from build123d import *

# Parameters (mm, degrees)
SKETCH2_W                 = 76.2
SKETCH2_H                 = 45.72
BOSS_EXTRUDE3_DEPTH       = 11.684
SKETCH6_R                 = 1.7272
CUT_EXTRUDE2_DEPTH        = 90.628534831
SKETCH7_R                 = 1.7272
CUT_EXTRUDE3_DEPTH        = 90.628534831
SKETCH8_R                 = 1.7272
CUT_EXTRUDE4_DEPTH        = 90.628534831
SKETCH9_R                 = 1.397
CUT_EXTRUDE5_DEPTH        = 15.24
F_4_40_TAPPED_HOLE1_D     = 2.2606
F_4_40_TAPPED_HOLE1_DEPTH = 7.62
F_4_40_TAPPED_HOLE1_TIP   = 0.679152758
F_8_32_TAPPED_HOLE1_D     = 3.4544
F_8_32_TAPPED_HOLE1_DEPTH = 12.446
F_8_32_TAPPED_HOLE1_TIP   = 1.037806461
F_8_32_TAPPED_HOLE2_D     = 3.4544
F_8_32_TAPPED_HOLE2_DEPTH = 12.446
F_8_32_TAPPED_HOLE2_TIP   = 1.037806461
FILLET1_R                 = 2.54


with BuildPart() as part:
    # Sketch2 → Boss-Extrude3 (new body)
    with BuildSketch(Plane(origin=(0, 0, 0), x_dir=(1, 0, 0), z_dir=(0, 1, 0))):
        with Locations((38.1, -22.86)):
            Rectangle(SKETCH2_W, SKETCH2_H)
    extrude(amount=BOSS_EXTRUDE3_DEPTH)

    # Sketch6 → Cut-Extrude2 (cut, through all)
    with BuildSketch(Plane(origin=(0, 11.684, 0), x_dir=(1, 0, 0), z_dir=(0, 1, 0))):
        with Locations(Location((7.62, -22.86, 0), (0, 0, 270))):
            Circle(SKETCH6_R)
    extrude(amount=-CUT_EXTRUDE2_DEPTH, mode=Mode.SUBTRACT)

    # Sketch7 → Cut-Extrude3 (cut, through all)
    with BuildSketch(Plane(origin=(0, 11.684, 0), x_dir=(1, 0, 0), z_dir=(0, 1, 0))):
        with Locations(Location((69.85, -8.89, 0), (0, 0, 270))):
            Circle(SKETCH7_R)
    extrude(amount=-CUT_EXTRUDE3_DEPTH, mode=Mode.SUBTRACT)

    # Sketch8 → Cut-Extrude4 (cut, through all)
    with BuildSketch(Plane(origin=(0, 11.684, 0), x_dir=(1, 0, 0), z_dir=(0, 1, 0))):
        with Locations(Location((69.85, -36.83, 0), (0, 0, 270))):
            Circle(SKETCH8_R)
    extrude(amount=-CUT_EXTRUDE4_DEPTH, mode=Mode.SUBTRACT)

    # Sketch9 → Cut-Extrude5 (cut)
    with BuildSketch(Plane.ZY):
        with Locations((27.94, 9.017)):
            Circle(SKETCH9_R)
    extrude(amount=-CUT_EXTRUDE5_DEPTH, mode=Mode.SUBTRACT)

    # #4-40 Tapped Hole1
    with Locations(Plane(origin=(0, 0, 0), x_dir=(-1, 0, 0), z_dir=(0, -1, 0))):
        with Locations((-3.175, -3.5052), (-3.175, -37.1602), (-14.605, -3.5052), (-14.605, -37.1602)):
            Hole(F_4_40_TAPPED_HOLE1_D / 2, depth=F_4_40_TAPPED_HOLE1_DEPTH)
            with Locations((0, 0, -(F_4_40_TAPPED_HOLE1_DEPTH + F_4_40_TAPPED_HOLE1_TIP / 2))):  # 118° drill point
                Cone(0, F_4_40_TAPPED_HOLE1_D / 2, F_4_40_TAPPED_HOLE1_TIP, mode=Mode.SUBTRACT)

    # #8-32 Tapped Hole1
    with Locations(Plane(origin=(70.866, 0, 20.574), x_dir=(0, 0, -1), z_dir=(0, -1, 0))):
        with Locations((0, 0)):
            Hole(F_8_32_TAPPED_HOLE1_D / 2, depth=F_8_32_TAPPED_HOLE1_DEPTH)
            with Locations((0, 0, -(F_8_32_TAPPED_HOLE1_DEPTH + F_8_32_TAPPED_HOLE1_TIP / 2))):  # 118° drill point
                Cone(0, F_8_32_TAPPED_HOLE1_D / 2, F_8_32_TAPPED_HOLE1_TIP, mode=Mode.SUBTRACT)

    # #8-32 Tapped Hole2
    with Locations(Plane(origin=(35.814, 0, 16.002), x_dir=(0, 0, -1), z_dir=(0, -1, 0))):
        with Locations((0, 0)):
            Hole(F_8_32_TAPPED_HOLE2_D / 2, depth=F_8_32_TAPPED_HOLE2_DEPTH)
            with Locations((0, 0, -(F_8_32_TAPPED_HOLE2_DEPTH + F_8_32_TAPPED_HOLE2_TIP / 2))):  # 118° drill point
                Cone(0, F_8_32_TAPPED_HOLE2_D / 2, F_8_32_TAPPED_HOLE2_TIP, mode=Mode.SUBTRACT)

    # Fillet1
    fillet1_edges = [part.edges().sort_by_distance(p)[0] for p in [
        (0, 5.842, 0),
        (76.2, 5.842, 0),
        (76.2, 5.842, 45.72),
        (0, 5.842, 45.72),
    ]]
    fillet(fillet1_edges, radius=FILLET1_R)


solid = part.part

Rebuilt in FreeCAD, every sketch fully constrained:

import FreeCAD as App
import Part
import Sketcher

V = App.Vector
Q = App.Units.Quantity


def edges_at(feature, points):
    """Names of the edges that pass closest to the given points."""
    edges = feature.Shape.Edges
    near = lambda p: min(range(len(edges)), key=lambda i: edges[i].distToShape(Part.Vertex(*p))[0])
    return sorted({f"Edge{near(p) + 1}" for p in points})


def add_polygon(sketch, points):
    """Adds a closed chain of lines whose ends are joined by coincident constraints."""
    first, n = sketch.GeometryCount, len(points)
    for a, b in zip(points, points[1:] + points[:1]):
        sketch.addGeometry(Part.LineSegment(App.Vector(*a, 0), App.Vector(*b, 0)), False)
    for i in range(n):
        sketch.addConstraint(Sketcher.Constraint("Coincident", first + i, 2, first + (i + 1) % n, 1))

doc = App.newDocument("Part")
body = doc.addObject("PartDesign::Body", "Body")

sketch1 = body.newObject("Sketcher::SketchObject", "Sketch")
sketch1.AttachmentSupport = (doc.getObject("XZ_Plane"), [""])
sketch1.MapMode = "FlatFace"
add_polygon(sketch1, [(0, 0), (0, 46), (76, 46), (76, 0)])
sketch1.addConstraint(Sketcher.Constraint("Vertical", 0))
sketch1.addConstraint(Sketcher.Constraint("Horizontal", 1))
sketch1.addConstraint(Sketcher.Constraint("Vertical", 2))
sketch1.addConstraint(Sketcher.Constraint("Horizontal", 3))
sketch1.addConstraint(Sketcher.Constraint("Coincident", 3, 2, -1, 1))
sketch1.addConstraint(Sketcher.Constraint("DistanceX", 1, 1, 1, 2, Q("3 in")))
sketch1.addConstraint(Sketcher.Constraint("DistanceY", 0, 1, 0, 2, Q("1.8 in")))
pad1 = body.newObject("PartDesign::Pad", "Pad")
pad1.Profile = sketch1
pad1.Length = Q("0.46 in")
pad1.Reversed = True

sketch2 = body.newObject("Sketcher::SketchObject", "Sketch001")
sketch2.AttachmentSupport = (doc.getObject("XZ_Plane"), [""])
sketch2.MapMode = "FlatFace"
sketch2.AttachmentOffset = App.Placement(V(0, 0, -0.46 * 25.4), App.Rotation())
sketch2.addGeometry(Part.Circle(V(7.6, 22.9, 0), V(0, 0, 1), 1.7), False)
sketch2.addConstraint(Sketcher.Constraint("Diameter", 0, Q("0.136 in")))
sketch2.addConstraint(Sketcher.Constraint("DistanceX", -1, 1, 0, 3, Q("0.3 in")))
sketch2.addConstraint(Sketcher.Constraint("DistanceY", -1, 1, 0, 3, Q("0.9 in")))
pocket1 = body.newObject("PartDesign::Pocket", "Pocket")
pocket1.Profile = sketch2
pocket1.Type = "ThroughAll"
pocket1.Reversed = True

sketch3 = body.newObject("Sketcher::SketchObject", "Sketch002")
sketch3.AttachmentSupport = (doc.getObject("XZ_Plane"), [""])
sketch3.MapMode = "FlatFace"
sketch3.AttachmentOffset = App.Placement(V(0, 0, -0.46 * 25.4), App.Rotation())
sketch3.addGeometry(Part.Circle(V(69.8, 8.9, 0), V(0, 0, 1), 1.7), False)
sketch3.addConstraint(Sketcher.Constraint("Diameter", 0, Q("0.136 in")))
sketch3.addConstraint(Sketcher.Constraint("DistanceX", -1, 1, 0, 3, Q("2.75 in")))
sketch3.addConstraint(Sketcher.Constraint("DistanceY", -1, 1, 0, 3, Q("0.35 in")))
pocket2 = body.newObject("PartDesign::Pocket", "Pocket001")
pocket2.Profile = sketch3
pocket2.Type = "ThroughAll"
pocket2.Reversed = True

sketch4 = body.newObject("Sketcher::SketchObject", "Sketch003")
sketch4.AttachmentSupport = (doc.getObject("XZ_Plane"), [""])
sketch4.MapMode = "FlatFace"
sketch4.AttachmentOffset = App.Placement(V(0, 0, -0.46 * 25.4), App.Rotation())
sketch4.addGeometry(Part.Circle(V(69.8, 36.8, 0), V(0, 0, 1), 1.7), False)
sketch4.addConstraint(Sketcher.Constraint("Diameter", 0, Q("0.136 in")))
sketch4.addConstraint(Sketcher.Constraint("DistanceX", -1, 1, 0, 3, Q("2.75 in")))
sketch4.addConstraint(Sketcher.Constraint("DistanceY", -1, 1, 0, 3, Q("1.45 in")))
pocket3 = body.newObject("PartDesign::Pocket", "Pocket002")
pocket3.Profile = sketch4
pocket3.Type = "ThroughAll"
pocket3.Reversed = True

sketch5 = body.newObject("Sketcher::SketchObject", "Sketch004")
sketch5.AttachmentSupport = (doc.getObject("YZ_Plane"), [""])
sketch5.MapMode = "FlatFace"
sketch5.addGeometry(Part.Circle(V(9, 27.9, 0), V(0, 0, 1), 1.4), False)
sketch5.addConstraint(Sketcher.Constraint("Diameter", 0, Q("0.11 in")))
sketch5.addConstraint(Sketcher.Constraint("DistanceY", -1, 1, 0, 3, Q("1.1 in")))
sketch5.addConstraint(Sketcher.Constraint("DistanceX", -1, 1, 0, 3, Q("0.355 in")))
pocket4 = body.newObject("PartDesign::Pocket", "Pocket003")
pocket4.Profile = sketch5
pocket4.Length = Q("0.6 in")
pocket4.Reversed = True

sketch6 = body.newObject("Sketcher::SketchObject", "Sketch005")
sketch6.AttachmentSupport = (doc.getObject("XZ_Plane"), [""])
sketch6.MapMode = "FlatFace"
sketch6.addGeometry(Part.Circle(V(3.2, 3.5, 0), V(0, 0, 1), 1.1), False)
sketch6.addGeometry(Part.Circle(V(3.2, 37.2, 0), V(0, 0, 1), 1.1), False)
sketch6.addGeometry(Part.Circle(V(14.6, 3.5, 0), V(0, 0, 1), 1.1), False)
sketch6.addGeometry(Part.Circle(V(14.6, 37.2, 0), V(0, 0, 1), 1.1), False)
sketch6.addConstraint(Sketcher.Constraint("Equal", 0, 1))
sketch6.addConstraint(Sketcher.Constraint("Equal", 1, 2))
sketch6.addConstraint(Sketcher.Constraint("Equal", 2, 3))
sketch6.addConstraint(Sketcher.Constraint("Horizontal", 0, 3, 2, 3))
sketch6.addConstraint(Sketcher.Constraint("Horizontal", 1, 3, 3, 3))
sketch6.addConstraint(Sketcher.Constraint("Vertical", 0, 3, 1, 3))
sketch6.addConstraint(Sketcher.Constraint("Vertical", 2, 3, 3, 3))
sketch6.addConstraint(Sketcher.Constraint("Diameter", 0, Q("0.089 in")))
sketch6.addConstraint(Sketcher.Constraint("DistanceX", 0, 3, 2, 3, Q("0.45 in")))
sketch6.addConstraint(Sketcher.Constraint("DistanceX", -1, 1, 0, 3, Q("0.125 in")))
sketch6.addConstraint(Sketcher.Constraint("DistanceY", -1, 1, 0, 3, Q("0.138 in")))
sketch6.addConstraint(Sketcher.Constraint("DistanceY", -1, 1, 1, 3, Q("1.463 in")))
doc.recompute()
hole = body.newObject("PartDesign::Hole", "Hole")
hole.Profile = sketch6
hole.ThreadType = "None"
hole.Diameter = Q("0.089 in")
hole.DepthType = "Dimension"
hole.Depth = Q("0.3 in")
hole.DrillPoint = "Angled"
hole.DrillPointAngle = 118

sketch7 = body.newObject("Sketcher::SketchObject", "Sketch006")
sketch7.AttachmentSupport = (doc.getObject("XZ_Plane"), [""])
sketch7.MapMode = "FlatFace"
sketch7.addGeometry(Part.Circle(V(70.9, 20.6, 0), V(0, 0, 1), 1.7), False)
sketch7.addConstraint(Sketcher.Constraint("Diameter", 0, Q("0.136 in")))
sketch7.addConstraint(Sketcher.Constraint("DistanceX", -1, 1, 0, 3, Q("2.79 in")))
sketch7.addConstraint(Sketcher.Constraint("DistanceY", -1, 1, 0, 3, Q("0.81 in")))
doc.recompute()
hole2 = body.newObject("PartDesign::Hole", "Hole001")
hole2.Profile = sketch7
hole2.ThreadType = "None"
hole2.Diameter = Q("0.136 in")
hole2.DepthType = "Dimension"
hole2.Depth = Q("0.49 in")
hole2.DrillPoint = "Angled"
hole2.DrillPointAngle = 118

sketch8 = body.newObject("Sketcher::SketchObject", "Sketch007")
sketch8.AttachmentSupport = (doc.getObject("XZ_Plane"), [""])
sketch8.MapMode = "FlatFace"
sketch8.addGeometry(Part.Circle(V(35.8, 16, 0), V(0, 0, 1), 1.7), False)
sketch8.addConstraint(Sketcher.Constraint("Diameter", 0, Q("0.136 in")))
sketch8.addConstraint(Sketcher.Constraint("DistanceX", -1, 1, 0, 3, Q("1.41 in")))
sketch8.addConstraint(Sketcher.Constraint("DistanceY", -1, 1, 0, 3, Q("0.63 in")))
doc.recompute()
hole3 = body.newObject("PartDesign::Hole", "Hole002")
hole3.Profile = sketch8
hole3.ThreadType = "None"
hole3.Diameter = Q("0.136 in")
hole3.DepthType = "Dimension"
hole3.Depth = Q("0.49 in")
hole3.DrillPoint = "Angled"
hole3.DrillPointAngle = 118
doc.recompute()

fillet = body.newObject("PartDesign::Fillet", "Fillet")
fillet.Base = (hole3, edges_at(hole3, [
    (0, 5.842, 0),
    (76.2, 5.842, 0),
    (76.2, 5.842, 45.72),
    (0, 5.842, 45.72),
]))
fillet.Radius = Q("0.1 in")

doc.recompute()
